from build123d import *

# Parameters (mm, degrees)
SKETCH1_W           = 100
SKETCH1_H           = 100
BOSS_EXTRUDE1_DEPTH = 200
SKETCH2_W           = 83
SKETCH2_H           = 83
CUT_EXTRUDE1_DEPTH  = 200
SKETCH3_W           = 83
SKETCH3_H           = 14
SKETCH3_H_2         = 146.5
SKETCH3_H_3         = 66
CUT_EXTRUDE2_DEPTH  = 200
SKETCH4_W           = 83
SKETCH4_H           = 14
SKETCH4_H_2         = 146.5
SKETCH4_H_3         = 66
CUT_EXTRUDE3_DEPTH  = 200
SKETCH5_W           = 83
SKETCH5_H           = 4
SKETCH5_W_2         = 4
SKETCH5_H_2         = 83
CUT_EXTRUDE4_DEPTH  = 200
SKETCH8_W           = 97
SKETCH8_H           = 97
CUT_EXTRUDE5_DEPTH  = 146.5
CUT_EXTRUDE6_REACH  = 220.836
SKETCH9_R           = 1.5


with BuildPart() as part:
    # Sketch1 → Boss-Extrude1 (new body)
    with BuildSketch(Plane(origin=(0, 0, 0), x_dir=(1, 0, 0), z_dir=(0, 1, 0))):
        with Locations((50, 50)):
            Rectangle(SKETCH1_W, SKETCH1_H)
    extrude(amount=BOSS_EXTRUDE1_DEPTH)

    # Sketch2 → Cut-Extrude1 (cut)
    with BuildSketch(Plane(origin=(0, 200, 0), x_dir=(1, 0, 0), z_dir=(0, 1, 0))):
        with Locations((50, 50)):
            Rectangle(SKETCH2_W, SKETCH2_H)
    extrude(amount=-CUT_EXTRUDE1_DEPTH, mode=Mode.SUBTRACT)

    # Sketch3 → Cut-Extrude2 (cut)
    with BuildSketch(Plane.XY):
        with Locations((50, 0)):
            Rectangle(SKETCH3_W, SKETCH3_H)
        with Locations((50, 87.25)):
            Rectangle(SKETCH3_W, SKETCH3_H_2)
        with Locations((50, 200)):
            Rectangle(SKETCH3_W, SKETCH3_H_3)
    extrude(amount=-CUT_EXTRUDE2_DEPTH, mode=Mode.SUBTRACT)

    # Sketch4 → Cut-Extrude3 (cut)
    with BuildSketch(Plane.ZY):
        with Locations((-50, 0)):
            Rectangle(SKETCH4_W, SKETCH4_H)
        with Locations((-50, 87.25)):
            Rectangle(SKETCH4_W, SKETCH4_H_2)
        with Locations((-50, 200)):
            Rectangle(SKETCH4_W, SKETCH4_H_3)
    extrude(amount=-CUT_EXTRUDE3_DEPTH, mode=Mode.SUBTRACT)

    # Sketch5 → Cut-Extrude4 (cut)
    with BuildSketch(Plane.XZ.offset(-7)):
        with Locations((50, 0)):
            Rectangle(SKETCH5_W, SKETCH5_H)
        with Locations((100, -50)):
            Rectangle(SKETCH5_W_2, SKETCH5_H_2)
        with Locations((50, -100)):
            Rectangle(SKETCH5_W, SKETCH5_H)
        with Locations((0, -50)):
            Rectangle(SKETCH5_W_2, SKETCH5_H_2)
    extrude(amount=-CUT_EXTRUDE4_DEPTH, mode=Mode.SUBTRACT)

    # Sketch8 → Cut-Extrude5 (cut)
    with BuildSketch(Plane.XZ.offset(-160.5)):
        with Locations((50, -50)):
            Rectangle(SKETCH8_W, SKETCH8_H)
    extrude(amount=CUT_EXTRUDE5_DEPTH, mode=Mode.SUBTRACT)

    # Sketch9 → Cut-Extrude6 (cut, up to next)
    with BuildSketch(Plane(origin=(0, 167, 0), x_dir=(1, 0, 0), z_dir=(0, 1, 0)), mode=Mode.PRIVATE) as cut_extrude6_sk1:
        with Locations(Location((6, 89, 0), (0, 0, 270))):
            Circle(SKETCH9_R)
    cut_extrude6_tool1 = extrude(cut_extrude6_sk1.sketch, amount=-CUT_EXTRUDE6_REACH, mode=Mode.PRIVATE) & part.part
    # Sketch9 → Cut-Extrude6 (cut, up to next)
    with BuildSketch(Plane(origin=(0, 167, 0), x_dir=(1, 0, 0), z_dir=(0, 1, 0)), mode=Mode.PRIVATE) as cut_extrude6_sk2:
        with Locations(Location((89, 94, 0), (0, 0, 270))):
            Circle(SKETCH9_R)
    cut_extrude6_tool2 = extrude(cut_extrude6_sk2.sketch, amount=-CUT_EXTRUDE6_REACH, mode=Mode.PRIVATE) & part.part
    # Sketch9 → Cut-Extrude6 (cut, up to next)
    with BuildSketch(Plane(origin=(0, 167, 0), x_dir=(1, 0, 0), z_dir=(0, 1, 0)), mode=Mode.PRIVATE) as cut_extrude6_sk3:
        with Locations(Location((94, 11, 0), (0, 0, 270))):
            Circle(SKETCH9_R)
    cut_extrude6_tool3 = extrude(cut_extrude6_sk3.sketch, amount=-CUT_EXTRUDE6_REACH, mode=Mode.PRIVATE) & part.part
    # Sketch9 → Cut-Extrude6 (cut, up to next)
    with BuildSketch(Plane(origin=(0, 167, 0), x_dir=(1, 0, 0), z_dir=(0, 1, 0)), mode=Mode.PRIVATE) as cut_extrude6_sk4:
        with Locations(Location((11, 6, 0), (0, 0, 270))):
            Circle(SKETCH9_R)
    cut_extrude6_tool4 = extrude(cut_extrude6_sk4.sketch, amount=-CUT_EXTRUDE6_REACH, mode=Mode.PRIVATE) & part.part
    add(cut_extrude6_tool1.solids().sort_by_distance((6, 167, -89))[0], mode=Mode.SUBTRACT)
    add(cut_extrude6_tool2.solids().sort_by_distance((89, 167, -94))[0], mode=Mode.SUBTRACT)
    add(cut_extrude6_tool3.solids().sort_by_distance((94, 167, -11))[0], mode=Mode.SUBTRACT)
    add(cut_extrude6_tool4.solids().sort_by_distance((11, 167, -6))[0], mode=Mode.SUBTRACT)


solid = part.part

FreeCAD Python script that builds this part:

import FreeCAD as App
import Part
import Sketcher

V = App.Vector
Q = App.Units.Quantity


def add_polygon(sketch, points):
    """Adds a closed chain of lines whose ends are joined by coincident constraints."""
    first, n = sketch.GeometryCount, len(points)
    for a, b in zip(points, points[1:] + points[:1]):
        sketch.addGeometry(Part.LineSegment(App.Vector(*a, 0), App.Vector(*b, 0)), False)
    for i in range(n):
        sketch.addConstraint(Sketcher.Constraint("Coincident", first + i, 2, first + (i + 1) % n, 1))

doc = App.newDocument("Part")
body = doc.addObject("PartDesign::Body", "Body")

# Sketch on XZ plane
sketch1 = body.newObject("Sketcher::SketchObject", "Sketch")
sketch1.AttachmentSupport = (doc.getObject("XZ_Plane"), [""])
sketch1.MapMode = "FlatFace"
add_polygon(sketch1, [(0, -100), (0, 0), (100, 0), (100, -100)])  # lines 0-3
sketch1.addConstraint(Sketcher.Constraint("Vertical", 0))
sketch1.addConstraint(Sketcher.Constraint("Horizontal", 1))
sketch1.addConstraint(Sketcher.Constraint("Vertical", 2))
sketch1.addConstraint(Sketcher.Constraint("Horizontal", 3))
sketch1.addConstraint(Sketcher.Constraint("Coincident", 0, 2, -1, 1))
sketch1.addConstraint(Sketcher.Constraint("Equal", 3, 0))
sketch1.addConstraint(Sketcher.Constraint("DistanceX", 1, 1, 1, 2, Q("100 mm")))
pad1 = body.newObject("PartDesign::Pad", "Pad")
pad1.Profile = sketch1
pad1.Length = 200
pad1.Reversed = True

# Sketch on XZ plane
sketch2 = body.newObject("Sketcher::SketchObject", "Sketch001")
sketch2.AttachmentSupport = (doc.getObject("XZ_Plane"), [""])
sketch2.MapMode = "FlatFace"
sketch2.AttachmentOffset = App.Placement(V(0, 0, -200), App.Rotation())
add_polygon(sketch2, [(8, -92), (8, -8), (92, -8), (92, -92)])  # lines 0-3
sketch2.addConstraint(Sketcher.Constraint("Vertical", 0))
sketch2.addConstraint(Sketcher.Constraint("Horizontal", 1))
sketch2.addConstraint(Sketcher.Constraint("Vertical", 2))
sketch2.addConstraint(Sketcher.Constraint("Horizontal", 3))
sketch2.addConstraint(Sketcher.Constraint("Equal", 3, 0))
sketch2.addConstraint(Sketcher.Constraint("DistanceX", 1, 1, 1, 2, Q("83 mm")))
sketch2.addConstraint(Sketcher.Constraint("DistanceX", -1, 1, 0, 2, Q("8.5 mm")))
sketch2.addConstraint(Sketcher.Constraint("DistanceY", 0, 2, -1, 1, Q("8.5 mm")))
pocket1 = body.newObject("PartDesign::Pocket", "Pocket")
pocket1.Profile = sketch2
pocket1.Length = 200
pocket1.Reversed = True

# Sketch on XY plane
sketch3 = body.newObject("Sketcher::SketchObject", "Sketch002")
sketch3.AttachmentSupport = (doc.getObject("XY_Plane"), [""])
sketch3.MapMode = "FlatFace"
add_polygon(sketch3, [(8, 7), (8, -7), (92, -7), (92, 7)])  # lines 0-3
add_polygon(sketch3, [(8, 160), (8, 14), (92, 14), (92, 160)])  # lines 4-7
add_polygon(sketch3, [(8, 233), (8, 167), (92, 167), (92, 233)])  # lines 8-11
sketch3.addConstraint(Sketcher.Constraint("Vertical", 0))
sketch3.addConstraint(Sketcher.Constraint("Horizontal", 1))
sketch3.addConstraint(Sketcher.Constraint("Vertical", 2))
sketch3.addConstraint(Sketcher.Constraint("Horizontal", 3))
sketch3.addConstraint(Sketcher.Constraint("Vertical", 4))
sketch3.addConstraint(Sketcher.Constraint("Horizontal", 5))
sketch3.addConstraint(Sketcher.Constraint("Vertical", 6))
sketch3.addConstraint(Sketcher.Constraint("Horizontal", 7))
sketch3.addConstraint(Sketcher.Constraint("Vertical", 8))
sketch3.addConstraint(Sketcher.Constraint("Horizontal", 9))
sketch3.addConstraint(Sketcher.Constraint("Vertical", 10))
sketch3.addConstraint(Sketcher.Constraint("Horizontal", 11))
sketch3.addConstraint(Sketcher.Constraint("Vertical", 3, 2, 4, 2))
sketch3.addConstraint(Sketcher.Constraint("Vertical", 2, 2, 5, 2))
sketch3.addConstraint(Sketcher.Constraint("Vertical", 7, 2, 8, 2))
sketch3.addConstraint(Sketcher.Constraint("Vertical", 6, 2, 9, 2))
sketch3.addConstraint(Sketcher.Constraint("DistanceX", 1, 1, 1, 2, Q("83 mm")))
sketch3.addConstraint(Sketcher.Constraint("DistanceY", 0, 2, 0, 1, Q("14 mm")))
sketch3.addConstraint(Sketcher.Constraint("DistanceY", 8, 2, 8, 1, Q("66 mm")))
sketch3.addConstraint(Sketcher.Constraint("DistanceY", 4, 2, 4, 1, Q("146.5 mm")))
sketch3.addConstraint(Sketcher.Constraint("DistanceY", 0, 2, -1, 1, Q("7 mm")))
sketch3.addConstraint(Sketcher.Constraint("DistanceY", -1, 1, 4, 2, Q("14 mm")))
sketch3.addConstraint(Sketcher.Constraint("DistanceY", -1, 1, 8, 2, Q("167 mm")))
sketch3.addConstraint(Sketcher.Constraint("DistanceX", -1, 1, 0, 2, Q("8.5 mm")))
pocket2 = body.newObject("PartDesign::Pocket", "Pocket001")
pocket2.Profile = sketch3
pocket2.Length = 200

# Sketch on YZ plane
sketch4 = body.newObject("Sketcher::SketchObject", "Sketch003")
sketch4.AttachmentSupport = (doc.getObject("YZ_Plane"), [""])
sketch4.MapMode = "FlatFace"
add_polygon(sketch4, [(7, -92), (-7, -92), (-7, -8), (7, -8)])  # lines 0-3
add_polygon(sketch4, [(160, -92), (14, -92), (14, -8), (160, -8)])  # lines 4-7
add_polygon(sketch4, [(233, -92), (167, -92), (167, -8), (233, -8)])  # lines 8-11
sketch4.addConstraint(Sketcher.Constraint("Horizontal", 0))
sketch4.addConstraint(Sketcher.Constraint("Vertical", 1))
sketch4.addConstraint(Sketcher.Constraint("Horizontal", 2))
sketch4.addConstraint(Sketcher.Constraint("Vertical", 3))
sketch4.addConstraint(Sketcher.Constraint("Horizontal", 4))
sketch4.addConstraint(Sketcher.Constraint("Vertical", 5))
sketch4.addConstraint(Sketcher.Constraint("Horizontal", 6))
sketch4.addConstraint(Sketcher.Constraint("Vertical", 7))
sketch4.addConstraint(Sketcher.Constraint("Horizontal", 8))
sketch4.addConstraint(Sketcher.Constraint("Vertical", 9))
sketch4.addConstraint(Sketcher.Constraint("Horizontal", 10))
sketch4.addConstraint(Sketcher.Constraint("Vertical", 11))
sketch4.addConstraint(Sketcher.Constraint("Horizontal", 3, 2, 4, 2))
sketch4.addConstraint(Sketcher.Constraint("Horizontal", 2, 2, 5, 2))
sketch4.addConstraint(Sketcher.Constraint("Horizontal", 7, 2, 8, 2))
sketch4.addConstraint(Sketcher.Constraint("Horizontal", 6, 2, 9, 2))
sketch4.addConstraint(Sketcher.Constraint("DistanceX", 0, 2, 0, 1, Q("14 mm")))
sketch4.addConstraint(Sketcher.Constraint("DistanceX", 8, 2, 8, 1, Q("66 mm")))
sketch4.addConstraint(Sketcher.Constraint("DistanceY", 1, 1, 1, 2, Q("83 mm")))
sketch4.addConstraint(Sketcher.Constraint("DistanceX", 4, 2, 4, 1, Q("146.5 mm")))
sketch4.addConstraint(Sketcher.Constraint("DistanceX", 0, 2, -1, 1, Q("7 mm")))
sketch4.addConstraint(Sketcher.Constraint("DistanceX", -1, 1, 4, 2, Q("14 mm")))
sketch4.addConstraint(Sketcher.Constraint("DistanceX", -1, 1, 8, 2, Q("167 mm")))
sketch4.addConstraint(Sketcher.Constraint("DistanceY", 0, 2, -1, 1, Q("91.5 mm")))
pocket3 = body.newObject("PartDesign::Pocket", "Pocket002")
pocket3.Profile = sketch4
pocket3.Length = 200
pocket3.Reversed = True

# Sketch on XZ plane
sketch5 = body.newObject("Sketcher::SketchObject", "Sketch004")
sketch5.AttachmentSupport = (doc.getObject("XZ_Plane"), [""])
sketch5.MapMode = "FlatFace"
sketch5.AttachmentOffset = App.Placement(V(0, 0, -7), App.Rotation())
add_polygon(sketch5, [(8.5, 2), (8.5, -2), (91.5, -2), (91.5, 2)])  # lines 0-3
add_polygon(sketch5, [(98, -8.5), (98, -91.5), (102, -91.5), (102, -8.5)])  # lines 4-7
add_polygon(sketch5, [(8.5, -98), (8.5, -102), (91.5, -102), (91.5, -98)])  # lines 8-11
add_polygon(sketch5, [(-2, -8.5), (-2, -91.5), (2, -91.5), (2, -8.5)])  # lines 12-15
sketch5.addConstraint(Sketcher.Constraint("Vertical", 0))
sketch5.addConstraint(Sketcher.Constraint("Horizontal", 1))
sketch5.addConstraint(Sketcher.Constraint("Vertical", 2))
sketch5.addConstraint(Sketcher.Constraint("Horizontal", 3))
sketch5.addConstraint(Sketcher.Constraint("Vertical", 4))
sketch5.addConstraint(Sketcher.Constraint("Horizontal", 5))
sketch5.addConstraint(Sketcher.Constraint("Vertical", 6))
sketch5.addConstraint(Sketcher.Constraint("Horizontal", 7))
sketch5.addConstraint(Sketcher.Constraint("Vertical", 8))
sketch5.addConstraint(Sketcher.Constraint("Horizontal", 9))
sketch5.addConstraint(Sketcher.Constraint("Vertical", 10))
sketch5.addConstraint(Sketcher.Constraint("Horizontal", 11))
sketch5.addConstraint(Sketcher.Constraint("Vertical", 12))
sketch5.addConstraint(Sketcher.Constraint("Horizontal", 13))
sketch5.addConstraint(Sketcher.Constraint("Vertical", 14))
sketch5.addConstraint(Sketcher.Constraint("Horizontal", 15))
sketch5.addConstraint(Sketcher.Constraint("Horizontal", 5, 2, 12, 2))
sketch5.addConstraint(Sketcher.Constraint("Horizontal", 7, 2, 14, 2))
sketch5.addConstraint(Sketcher.Constraint("Vertical", 3, 2, 8, 2))
sketch5.addConstraint(Sketcher.Constraint("Vertical", 2, 2, 9, 2))
sketch5.addConstraint(Sketcher.Constraint("Equal", 7, 13))
sketch5.addConstraint(Sketcher.Constraint("Equal", 15, 0))
sketch5.addConstraint(Sketcher.Constraint("Equal", 11, 4))
sketch5.addConstraint(Sketcher.Constraint("Equal", 2, 8))
sketch5.addConstraint(Sketcher.Constraint("DistanceX", 1, 1, 1, 2, Q("83 mm")))
sketch5.addConstraint(Sketcher.Constraint("DistanceX", 5, 1, 5, 2, Q("4 mm")))
sketch5.addConstraint(Sketcher.Constraint("DistanceY", 0, 2, -1, 1, Q("2 mm")))
sketch5.addConstraint(Sketcher.Constraint("DistanceX", -1, 1, 4, 2, Q("98 mm")))
sketch5.addConstraint(Sketcher.Constraint("DistanceY", 8, 2, -1, 1, Q("102 mm")))
sketch5.addConstraint(Sketcher.Constraint("DistanceX", 12, 2, -1, 1, Q("2 mm")))
sketch5.addConstraint(Sketcher.Constraint("DistanceX", -1, 1, 0, 2, Q("8.5 mm")))
sketch5.addConstraint(Sketcher.Constraint("DistanceY", 4, 2, -1, 1, Q("91.5 mm")))
pocket4 = body.newObject("PartDesign::Pocket", "Pocket003")
pocket4.Profile = sketch5
pocket4.Length = 200

# Sketch on XZ plane
sketch6 = body.newObject("Sketcher::SketchObject", "Sketch005")
sketch6.AttachmentSupport = (doc.getObject("XZ_Plane"), [""])
sketch6.MapMode = "FlatFace"
sketch6.AttachmentOffset = App.Placement(V(0, 0, -160.5), App.Rotation())
add_polygon(sketch6, [(2, -2), (2, -98), (98, -98), (98, -2)])  # lines 0-3
sketch6.addConstraint(Sketcher.Constraint("Vertical", 0))
sketch6.addConstraint(Sketcher.Constraint("Horizontal", 1))
sketch6.addConstraint(Sketcher.Constraint("Vertical", 2))
sketch6.addConstraint(Sketcher.Constraint("Horizontal", 3))
sketch6.addConstraint(Sketcher.Constraint("Equal", 3, 0))
sketch6.addConstraint(Sketcher.Constraint("DistanceX", 1, 1, 1, 2, Q("97 mm")))
sketch6.addConstraint(Sketcher.Constraint("DistanceX", -1, 1, 0, 2, Q("1.5 mm")))
sketch6.addConstraint(Sketcher.Constraint("DistanceY", 0, 2, -1, 1, Q("98.5 mm")))
pocket5 = body.newObject("PartDesign::Pocket", "Pocket004")
pocket5.Profile = sketch6
pocket5.Length = 146.5
pocket5.Reversed = True

# Sketch on XZ plane
sketch7 = body.newObject("Sketcher::SketchObject", "Sketch006")
sketch7.AttachmentSupport = (doc.getObject("XZ_Plane"), [""])
sketch7.MapMode = "FlatFace"
sketch7.AttachmentOffset = App.Placement(V(0, 0, -167), App.Rotation())
sketch7.addGeometry(Part.Circle(V(6, -89, 0), V(0, 0, 1), 1.5), False)
sketch7.addConstraint(Sketcher.Constraint("Diameter", 0, Q("3 mm")))
sketch7.addConstraint(Sketcher.Constraint("DistanceX", -1, 1, 0, 3, Q("6 mm")))
sketch7.addConstraint(Sketcher.Constraint("DistanceY", 0, 3, -1, 1, Q("89 mm")))
pocket6 = body.newObject("PartDesign::Pocket", "Pocket005")
pocket6.Profile = sketch7
pocket6.Type = "UpToFirst"
pocket6.Reversed = True

# Sketch on XZ plane
sketch8 = body.newObject("Sketcher::SketchObject", "Sketch007")
sketch8.AttachmentSupport = (doc.getObject("XZ_Plane"), [""])
sketch8.MapMode = "FlatFace"
sketch8.AttachmentOffset = App.Placement(V(0, 0, -167), App.Rotation())
sketch8.addGeometry(Part.Circle(V(89, -94, 0), V(0, 0, 1), 1.5), False)
sketch8.addConstraint(Sketcher.Constraint("Diameter", 0, Q("3 mm")))
sketch8.addConstraint(Sketcher.Constraint("DistanceX", -1, 1, 0, 3, Q("89 mm")))
sketch8.addConstraint(Sketcher.Constraint("DistanceY", 0, 3, -1, 1, Q("94 mm")))
pocket7 = body.newObject("PartDesign::Pocket", "Pocket006")
pocket7.Profile = sketch8
pocket7.Type = "UpToFirst"
pocket7.Reversed = True

# Sketch on XZ plane
sketch9 = body.newObject("Sketcher::SketchObject", "Sketch008")
sketch9.AttachmentSupport = (doc.getObject("XZ_Plane"), [""])
sketch9.MapMode = "FlatFace"
sketch9.AttachmentOffset = App.Placement(V(0, 0, -167), App.Rotation())
sketch9.addGeometry(Part.Circle(V(94, -11, 0), V(0, 0, 1), 1.5), False)
sketch9.addConstraint(Sketcher.Constraint("Diameter", 0, Q("3 mm")))
sketch9.addConstraint(Sketcher.Constraint("DistanceX", -1, 1, 0, 3, Q("94 mm")))
sketch9.addConstraint(Sketcher.Constraint("DistanceY", 0, 3, -1, 1, Q("11 mm")))
pocket8 = body.newObject("PartDesign::Pocket", "Pocket007")
pocket8.Profile = sketch9
pocket8.Type = "UpToFirst"
pocket8.Reversed = True

# Sketch on XZ plane
sketch10 = body.newObject("Sketcher::SketchObject", "Sketch009")
sketch10.AttachmentSupport = (doc.getObject("XZ_Plane"), [""])
sketch10.MapMode = "FlatFace"
sketch10.AttachmentOffset = App.Placement(V(0, 0, -167), App.Rotation())
sketch10.addGeometry(Part.Circle(V(11, -6, 0), V(0, 0, 1), 1.5), False)
sketch10.addConstraint(Sketcher.Constraint("Diameter", 0, Q("3 mm")))
sketch10.addConstraint(Sketcher.Constraint("DistanceX", -1, 1, 0, 3, Q("11 mm")))
sketch10.addConstraint(Sketcher.Constraint("DistanceY", 0, 3, -1, 1, Q("6 mm")))
pocket9 = body.newObject("PartDesign::Pocket", "Pocket008")
pocket9.Profile = sketch10
pocket9.Type = "UpToFirst"
pocket9.Reversed = True

doc.recompute()
